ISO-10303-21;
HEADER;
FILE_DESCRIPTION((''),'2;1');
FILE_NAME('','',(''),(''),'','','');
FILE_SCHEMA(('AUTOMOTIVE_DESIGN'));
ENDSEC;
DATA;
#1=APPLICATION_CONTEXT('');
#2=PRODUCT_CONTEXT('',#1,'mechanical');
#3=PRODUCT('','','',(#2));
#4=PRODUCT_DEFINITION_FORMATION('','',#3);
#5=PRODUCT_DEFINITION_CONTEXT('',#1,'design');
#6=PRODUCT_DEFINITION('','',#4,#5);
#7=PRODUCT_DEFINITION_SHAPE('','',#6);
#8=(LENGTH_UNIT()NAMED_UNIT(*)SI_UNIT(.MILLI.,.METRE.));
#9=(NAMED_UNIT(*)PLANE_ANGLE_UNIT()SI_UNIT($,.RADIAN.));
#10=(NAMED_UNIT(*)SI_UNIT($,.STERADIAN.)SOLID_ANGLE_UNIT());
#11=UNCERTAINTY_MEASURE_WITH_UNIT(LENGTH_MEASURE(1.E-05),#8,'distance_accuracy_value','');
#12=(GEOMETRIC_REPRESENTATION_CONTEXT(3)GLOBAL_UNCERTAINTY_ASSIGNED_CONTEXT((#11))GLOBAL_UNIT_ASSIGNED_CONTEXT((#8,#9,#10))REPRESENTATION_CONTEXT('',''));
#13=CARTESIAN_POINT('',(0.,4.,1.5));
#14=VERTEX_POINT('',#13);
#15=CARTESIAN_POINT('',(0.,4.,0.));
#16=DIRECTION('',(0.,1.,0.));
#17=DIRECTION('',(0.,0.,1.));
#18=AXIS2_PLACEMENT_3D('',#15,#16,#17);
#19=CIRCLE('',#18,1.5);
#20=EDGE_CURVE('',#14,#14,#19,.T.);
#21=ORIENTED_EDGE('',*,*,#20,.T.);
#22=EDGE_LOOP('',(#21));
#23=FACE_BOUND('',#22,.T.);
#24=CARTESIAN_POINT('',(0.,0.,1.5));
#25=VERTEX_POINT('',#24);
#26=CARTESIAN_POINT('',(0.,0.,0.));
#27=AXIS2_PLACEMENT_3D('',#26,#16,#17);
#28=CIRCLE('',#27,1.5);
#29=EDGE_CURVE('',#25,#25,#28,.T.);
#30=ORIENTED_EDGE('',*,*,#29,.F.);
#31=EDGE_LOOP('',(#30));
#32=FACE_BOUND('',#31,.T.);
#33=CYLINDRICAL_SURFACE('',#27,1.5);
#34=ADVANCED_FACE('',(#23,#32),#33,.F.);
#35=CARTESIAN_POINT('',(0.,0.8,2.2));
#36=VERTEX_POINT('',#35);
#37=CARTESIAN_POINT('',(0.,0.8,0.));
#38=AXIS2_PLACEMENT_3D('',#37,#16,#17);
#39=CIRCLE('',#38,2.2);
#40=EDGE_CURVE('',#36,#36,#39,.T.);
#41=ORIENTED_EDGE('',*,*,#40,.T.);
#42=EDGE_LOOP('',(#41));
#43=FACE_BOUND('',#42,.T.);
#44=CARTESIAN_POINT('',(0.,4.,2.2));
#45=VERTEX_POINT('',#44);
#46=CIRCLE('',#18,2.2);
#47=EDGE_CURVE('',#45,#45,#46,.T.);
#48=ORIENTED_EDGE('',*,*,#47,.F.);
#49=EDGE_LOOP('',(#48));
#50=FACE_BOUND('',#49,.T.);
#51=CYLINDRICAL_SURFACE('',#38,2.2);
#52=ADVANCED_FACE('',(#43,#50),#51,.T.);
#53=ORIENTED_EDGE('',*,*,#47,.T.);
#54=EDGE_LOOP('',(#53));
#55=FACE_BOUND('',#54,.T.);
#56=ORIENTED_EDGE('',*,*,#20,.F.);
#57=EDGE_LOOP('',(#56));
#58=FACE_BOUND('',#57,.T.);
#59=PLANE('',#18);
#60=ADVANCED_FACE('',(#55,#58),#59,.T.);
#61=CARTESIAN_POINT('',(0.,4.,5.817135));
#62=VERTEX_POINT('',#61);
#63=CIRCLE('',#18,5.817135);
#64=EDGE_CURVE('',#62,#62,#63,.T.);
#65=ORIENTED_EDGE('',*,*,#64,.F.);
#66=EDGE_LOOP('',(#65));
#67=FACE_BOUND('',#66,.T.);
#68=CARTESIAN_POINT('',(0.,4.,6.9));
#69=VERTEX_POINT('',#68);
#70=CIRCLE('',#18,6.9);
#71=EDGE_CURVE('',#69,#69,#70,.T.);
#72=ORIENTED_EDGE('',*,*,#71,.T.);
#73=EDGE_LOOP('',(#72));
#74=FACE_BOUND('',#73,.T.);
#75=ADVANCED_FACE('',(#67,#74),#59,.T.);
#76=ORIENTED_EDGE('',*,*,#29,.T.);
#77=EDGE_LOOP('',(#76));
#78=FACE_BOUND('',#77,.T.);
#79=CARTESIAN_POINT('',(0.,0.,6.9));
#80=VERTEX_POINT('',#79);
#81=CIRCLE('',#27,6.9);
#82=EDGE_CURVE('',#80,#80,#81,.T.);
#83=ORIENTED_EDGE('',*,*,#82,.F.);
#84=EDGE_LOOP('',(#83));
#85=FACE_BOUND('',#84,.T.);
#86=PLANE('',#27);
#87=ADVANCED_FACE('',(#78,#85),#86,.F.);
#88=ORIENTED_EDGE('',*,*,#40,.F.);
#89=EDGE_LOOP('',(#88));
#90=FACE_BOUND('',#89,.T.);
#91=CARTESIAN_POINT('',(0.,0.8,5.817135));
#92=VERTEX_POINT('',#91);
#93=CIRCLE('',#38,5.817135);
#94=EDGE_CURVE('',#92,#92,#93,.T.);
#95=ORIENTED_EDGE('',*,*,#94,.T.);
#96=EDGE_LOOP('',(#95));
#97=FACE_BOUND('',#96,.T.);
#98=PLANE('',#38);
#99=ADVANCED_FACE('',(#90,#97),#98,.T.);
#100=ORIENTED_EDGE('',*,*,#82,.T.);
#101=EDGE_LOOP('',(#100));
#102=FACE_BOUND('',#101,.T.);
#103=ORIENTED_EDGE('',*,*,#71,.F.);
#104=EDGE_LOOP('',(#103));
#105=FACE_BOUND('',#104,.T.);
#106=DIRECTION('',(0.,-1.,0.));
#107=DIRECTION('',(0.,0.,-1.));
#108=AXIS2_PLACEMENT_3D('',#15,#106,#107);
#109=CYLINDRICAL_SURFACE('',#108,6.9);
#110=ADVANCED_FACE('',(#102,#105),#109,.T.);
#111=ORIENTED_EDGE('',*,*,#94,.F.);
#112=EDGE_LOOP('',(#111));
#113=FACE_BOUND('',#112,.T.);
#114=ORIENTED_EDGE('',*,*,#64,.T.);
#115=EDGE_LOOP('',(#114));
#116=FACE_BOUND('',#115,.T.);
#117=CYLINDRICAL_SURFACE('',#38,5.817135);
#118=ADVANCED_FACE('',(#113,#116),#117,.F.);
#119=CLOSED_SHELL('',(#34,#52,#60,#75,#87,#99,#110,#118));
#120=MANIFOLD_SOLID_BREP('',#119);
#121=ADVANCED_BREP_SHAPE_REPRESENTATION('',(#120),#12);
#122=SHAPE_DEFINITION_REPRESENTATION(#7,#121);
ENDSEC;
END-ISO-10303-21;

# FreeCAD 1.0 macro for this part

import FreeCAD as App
import Part
import Sketcher

doc = App.newDocument("Part")
body = doc.addObject("PartDesign::Body", "Body")

sketch1 = body.newObject("Sketcher::SketchObject", "Sketch")
sketch1.AttachmentSupport = (doc.getObject("XZ_Plane"), [""])
sketch1.MapMode = "FlatFace"
sketch1.addGeometry(Part.Circle(App.Vector(0, 0, 0), App.Vector(0, 0, 1), 7), False)
sketch1.addConstraint([
    Sketcher.Constraint("Coincident", 0, 3, -1, 1),
    Sketcher.Constraint("Diameter", 0, 13.8),
])
pad1 = body.newObject("PartDesign::Pad", "Pad")
pad1.Profile = sketch1
pad1.Length = 4
pad1.Reversed = True

sketch2 = body.newObject("Sketcher::SketchObject", "Sketch001")
sketch2.AttachmentSupport = (doc.getObject("XZ_Plane"), [""])
sketch2.MapMode = "FlatFace"
sketch2.AttachmentOffset = App.Placement(App.Vector(0, 0, -4), App.Rotation())
sketch2.addGeometry([
    Part.Circle(App.Vector(0, 0, 0), App.Vector(0, 0, 1), 5.8),
    Part.Circle(App.Vector(0, 0, 0), App.Vector(0, 0, 1), 2.2),
], False)
sketch2.addConstraint([
    Sketcher.Constraint("Coincident", 0, 3, -1, 1),
    Sketcher.Constraint("Coincident", 1, 3, -1, 1),
    Sketcher.Constraint("Diameter", 1, 4.4),
    Sketcher.Constraint("Diameter", 0, 11.63427),
])
pocket1 = body.newObject("PartDesign::Pocket", "Pocket")
pocket1.Profile = sketch2
pocket1.Length = 3.2
pocket1.Reversed = True

sketch3 = body.newObject("Sketcher::SketchObject", "Sketch002")
sketch3.AttachmentSupport = (doc.getObject("XZ_Plane"), [""])
sketch3.MapMode = "FlatFace"
sketch3.AttachmentOffset = App.Placement(App.Vector(0, 0, -4), App.Rotation())
sketch3.addGeometry(Part.Circle(App.Vector(0, 0, 0), App.Vector(0, 0, 1), 1.5), False)
sketch3.addConstraint([
    Sketcher.Constraint("Coincident", 0, 3, -1, 1),
    Sketcher.Constraint("Diameter", 0, 3.0),
])
pocket2 = body.newObject("PartDesign::Pocket", "Pocket001")
pocket2.Profile = sketch3
pocket2.Type = "ThroughAll"
pocket2.Reversed = True

doc.recompute()
